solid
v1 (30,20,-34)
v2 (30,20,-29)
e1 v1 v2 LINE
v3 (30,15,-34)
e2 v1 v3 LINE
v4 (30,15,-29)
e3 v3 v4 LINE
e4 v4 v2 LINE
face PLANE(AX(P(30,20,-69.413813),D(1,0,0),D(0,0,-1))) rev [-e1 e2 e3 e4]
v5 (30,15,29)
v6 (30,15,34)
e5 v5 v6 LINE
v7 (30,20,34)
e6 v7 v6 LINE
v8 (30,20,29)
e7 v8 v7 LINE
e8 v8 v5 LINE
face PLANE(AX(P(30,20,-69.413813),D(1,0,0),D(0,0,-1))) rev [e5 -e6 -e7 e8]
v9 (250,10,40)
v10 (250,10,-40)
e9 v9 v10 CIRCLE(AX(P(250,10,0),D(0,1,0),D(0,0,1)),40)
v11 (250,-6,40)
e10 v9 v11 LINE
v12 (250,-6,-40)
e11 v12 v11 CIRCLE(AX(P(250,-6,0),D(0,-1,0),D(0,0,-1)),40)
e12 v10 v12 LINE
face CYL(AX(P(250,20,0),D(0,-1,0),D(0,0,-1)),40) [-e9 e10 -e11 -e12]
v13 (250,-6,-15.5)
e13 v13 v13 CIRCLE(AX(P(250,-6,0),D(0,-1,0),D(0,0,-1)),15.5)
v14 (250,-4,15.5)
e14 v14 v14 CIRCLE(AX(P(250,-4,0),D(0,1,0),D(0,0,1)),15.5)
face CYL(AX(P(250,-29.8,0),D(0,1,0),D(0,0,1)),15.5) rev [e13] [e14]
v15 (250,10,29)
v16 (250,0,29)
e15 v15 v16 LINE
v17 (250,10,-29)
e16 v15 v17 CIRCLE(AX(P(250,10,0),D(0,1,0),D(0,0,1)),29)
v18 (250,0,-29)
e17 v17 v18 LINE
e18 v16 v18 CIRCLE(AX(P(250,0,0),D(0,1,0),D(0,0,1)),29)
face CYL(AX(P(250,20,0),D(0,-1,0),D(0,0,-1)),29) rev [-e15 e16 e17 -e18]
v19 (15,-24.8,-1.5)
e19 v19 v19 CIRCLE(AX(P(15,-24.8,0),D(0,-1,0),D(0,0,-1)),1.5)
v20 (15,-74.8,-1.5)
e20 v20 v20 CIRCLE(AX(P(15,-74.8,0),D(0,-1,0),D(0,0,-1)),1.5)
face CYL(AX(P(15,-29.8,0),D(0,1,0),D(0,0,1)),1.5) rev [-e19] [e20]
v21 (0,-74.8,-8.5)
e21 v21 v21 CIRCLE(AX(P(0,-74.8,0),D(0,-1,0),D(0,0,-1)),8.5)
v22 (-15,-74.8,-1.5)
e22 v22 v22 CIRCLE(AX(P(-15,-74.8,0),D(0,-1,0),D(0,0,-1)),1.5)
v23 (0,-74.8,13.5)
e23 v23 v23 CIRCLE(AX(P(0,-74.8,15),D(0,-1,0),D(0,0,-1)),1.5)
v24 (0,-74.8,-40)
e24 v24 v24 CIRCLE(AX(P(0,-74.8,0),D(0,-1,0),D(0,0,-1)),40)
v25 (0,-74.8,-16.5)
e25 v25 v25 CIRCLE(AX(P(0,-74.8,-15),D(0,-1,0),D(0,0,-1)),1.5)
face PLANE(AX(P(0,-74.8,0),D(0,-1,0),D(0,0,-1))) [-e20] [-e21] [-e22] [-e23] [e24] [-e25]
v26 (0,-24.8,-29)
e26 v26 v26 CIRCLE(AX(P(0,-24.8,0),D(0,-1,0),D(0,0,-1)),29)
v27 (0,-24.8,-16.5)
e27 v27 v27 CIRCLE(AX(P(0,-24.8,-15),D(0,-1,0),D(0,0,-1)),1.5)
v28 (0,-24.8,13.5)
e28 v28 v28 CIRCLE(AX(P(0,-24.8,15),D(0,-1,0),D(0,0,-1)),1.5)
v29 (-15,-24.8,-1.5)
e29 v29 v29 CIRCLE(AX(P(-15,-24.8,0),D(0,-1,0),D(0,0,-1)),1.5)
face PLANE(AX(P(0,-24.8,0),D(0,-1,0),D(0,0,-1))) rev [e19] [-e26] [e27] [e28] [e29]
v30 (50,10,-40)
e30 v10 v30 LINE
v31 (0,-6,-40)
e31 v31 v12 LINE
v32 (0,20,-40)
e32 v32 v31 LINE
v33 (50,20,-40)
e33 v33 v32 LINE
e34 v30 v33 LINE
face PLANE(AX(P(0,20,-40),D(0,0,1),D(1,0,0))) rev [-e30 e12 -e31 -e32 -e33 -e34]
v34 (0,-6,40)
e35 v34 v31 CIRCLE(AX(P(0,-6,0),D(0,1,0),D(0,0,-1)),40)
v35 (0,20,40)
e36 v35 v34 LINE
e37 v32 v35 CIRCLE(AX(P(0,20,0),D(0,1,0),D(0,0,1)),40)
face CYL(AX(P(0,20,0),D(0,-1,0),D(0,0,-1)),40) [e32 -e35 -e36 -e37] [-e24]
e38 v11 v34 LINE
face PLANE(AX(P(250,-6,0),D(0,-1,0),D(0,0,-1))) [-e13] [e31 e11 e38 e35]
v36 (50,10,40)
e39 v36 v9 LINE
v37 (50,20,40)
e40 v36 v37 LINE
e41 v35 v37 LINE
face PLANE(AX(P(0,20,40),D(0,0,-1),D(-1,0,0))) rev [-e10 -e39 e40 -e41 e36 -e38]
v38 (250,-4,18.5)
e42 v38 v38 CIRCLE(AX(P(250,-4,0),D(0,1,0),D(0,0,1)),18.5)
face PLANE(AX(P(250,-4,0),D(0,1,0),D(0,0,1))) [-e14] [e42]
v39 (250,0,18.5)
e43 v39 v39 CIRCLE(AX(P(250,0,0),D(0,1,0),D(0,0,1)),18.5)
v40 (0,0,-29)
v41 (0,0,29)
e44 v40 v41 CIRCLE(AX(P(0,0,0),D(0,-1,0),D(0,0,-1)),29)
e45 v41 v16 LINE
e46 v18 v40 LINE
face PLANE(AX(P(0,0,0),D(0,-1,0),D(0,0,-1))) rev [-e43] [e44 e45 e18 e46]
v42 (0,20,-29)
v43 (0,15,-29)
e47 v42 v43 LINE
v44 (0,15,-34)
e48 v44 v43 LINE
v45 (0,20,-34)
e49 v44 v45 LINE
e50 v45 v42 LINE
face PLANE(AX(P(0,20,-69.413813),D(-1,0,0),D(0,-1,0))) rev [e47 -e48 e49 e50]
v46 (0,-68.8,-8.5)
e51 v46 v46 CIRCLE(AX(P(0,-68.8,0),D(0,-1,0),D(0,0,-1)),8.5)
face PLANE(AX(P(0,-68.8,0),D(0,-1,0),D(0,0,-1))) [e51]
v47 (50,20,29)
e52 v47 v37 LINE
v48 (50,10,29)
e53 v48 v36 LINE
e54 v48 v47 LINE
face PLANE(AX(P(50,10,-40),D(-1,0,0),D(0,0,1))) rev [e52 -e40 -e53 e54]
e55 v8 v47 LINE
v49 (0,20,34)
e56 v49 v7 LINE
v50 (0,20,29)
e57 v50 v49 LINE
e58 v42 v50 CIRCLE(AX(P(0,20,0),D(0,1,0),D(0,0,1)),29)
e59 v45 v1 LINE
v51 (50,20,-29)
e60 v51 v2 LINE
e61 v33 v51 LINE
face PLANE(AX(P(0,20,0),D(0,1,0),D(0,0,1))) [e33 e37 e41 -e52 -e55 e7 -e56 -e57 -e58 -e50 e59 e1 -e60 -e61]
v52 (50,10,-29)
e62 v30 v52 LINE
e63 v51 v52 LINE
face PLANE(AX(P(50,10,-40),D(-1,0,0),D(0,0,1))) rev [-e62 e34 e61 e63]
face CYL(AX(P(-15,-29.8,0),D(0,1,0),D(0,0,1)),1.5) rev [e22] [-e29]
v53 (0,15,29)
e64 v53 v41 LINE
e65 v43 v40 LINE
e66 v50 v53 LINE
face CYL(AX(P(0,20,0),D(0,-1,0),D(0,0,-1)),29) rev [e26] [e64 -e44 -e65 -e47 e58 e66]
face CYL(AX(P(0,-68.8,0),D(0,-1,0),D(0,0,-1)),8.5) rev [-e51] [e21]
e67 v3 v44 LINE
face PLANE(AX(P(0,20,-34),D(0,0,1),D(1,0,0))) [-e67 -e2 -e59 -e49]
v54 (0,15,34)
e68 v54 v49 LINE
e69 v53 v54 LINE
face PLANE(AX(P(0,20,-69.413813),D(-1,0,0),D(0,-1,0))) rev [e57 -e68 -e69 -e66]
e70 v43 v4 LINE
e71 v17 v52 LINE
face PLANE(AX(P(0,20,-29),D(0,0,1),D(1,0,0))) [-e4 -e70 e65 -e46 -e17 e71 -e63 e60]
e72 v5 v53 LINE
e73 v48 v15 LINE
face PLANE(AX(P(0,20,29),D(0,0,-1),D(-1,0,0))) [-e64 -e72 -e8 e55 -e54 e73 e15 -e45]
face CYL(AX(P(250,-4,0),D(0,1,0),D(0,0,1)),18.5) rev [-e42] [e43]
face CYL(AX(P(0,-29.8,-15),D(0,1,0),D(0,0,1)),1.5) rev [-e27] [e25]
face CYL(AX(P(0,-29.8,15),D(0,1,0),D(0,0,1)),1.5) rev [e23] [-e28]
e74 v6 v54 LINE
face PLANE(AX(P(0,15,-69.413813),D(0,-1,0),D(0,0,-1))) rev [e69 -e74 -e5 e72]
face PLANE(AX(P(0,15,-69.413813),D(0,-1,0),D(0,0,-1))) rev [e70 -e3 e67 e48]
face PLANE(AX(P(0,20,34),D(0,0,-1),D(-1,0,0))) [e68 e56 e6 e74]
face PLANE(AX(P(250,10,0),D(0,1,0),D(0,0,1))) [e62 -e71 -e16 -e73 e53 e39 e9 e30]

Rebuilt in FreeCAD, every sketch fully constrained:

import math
import FreeCAD as App
import Part
import Sketcher
from FreeCAD import Vector
Q = App.Units.Quantity


def add_polygon(sketch, points):
    """Adds a closed chain of lines whose ends are joined by coincident constraints."""
    first, n = sketch.GeometryCount, len(points)
    for a, b in zip(points, points[1:] + points[:1]):
        sketch.addGeometry(Part.LineSegment(App.Vector(*a, 0), App.Vector(*b, 0)), False)
    for i in range(n):
        sketch.addConstraint(Sketcher.Constraint("Coincident", first + i, 2, first + (i + 1) % n, 1))

doc = App.newDocument("Part")
body = doc.addObject("PartDesign::Body", "Body")

sketch1 = body.newObject("Sketcher::SketchObject", "Sketch")
sketch1.AttachmentSupport = (doc.getObject("XZ_Plane"), [""])
sketch1.MapMode = "FlatFace"
sketch1.addGeometry([
    Part.LineSegment(Vector(0, 40, 0), Vector(250, 40, 0)),
    Part.ArcOfCircle(Part.Circle(Vector(250, 0, 0), Vector(0, 0, 1), 40), math.radians(-90), math.radians(90)),
    Part.LineSegment(Vector(250, -40, 0), Vector(0, -40, 0)),
    Part.ArcOfCircle(Part.Circle(Vector(0, 0, 0), Vector(0, 0, 1), 40), math.radians(90), math.radians(270)),
    Part.ArcOfCircle(Part.Circle(Vector(0, 0, 0), Vector(0, 0, 1), 29), math.radians(90), math.radians(270)),
    Part.LineSegment(Vector(0, -29, 0), Vector(250, -29, 0)),
    Part.ArcOfCircle(Part.Circle(Vector(250, 0, 0), Vector(0, 0, 1), 29), math.radians(-90), math.radians(90)),
    Part.LineSegment(Vector(250, 29, 0), Vector(0, 29, 0)),
], False)
sketch1.addConstraint([
    Sketcher.Constraint("Tangent", 0, 2, 1, 2),
    Sketcher.Constraint("Tangent", 1, 1, 2, 1),
    Sketcher.Constraint("Tangent", 2, 2, 3, 2),
    Sketcher.Constraint("Tangent", 3, 1, 0, 1),
    Sketcher.Constraint("Tangent", 4, 2, 5, 1),
    Sketcher.Constraint("Tangent", 5, 2, 6, 1),
    Sketcher.Constraint("Tangent", 6, 2, 7, 1),
    Sketcher.Constraint("Tangent", 7, 2, 4, 1),
    Sketcher.Constraint("Horizontal", 0),
    Sketcher.Constraint("Horizontal", 2),
    Sketcher.Constraint("Horizontal", 5),
    Sketcher.Constraint("Horizontal", 7),
    Sketcher.Constraint("Coincident", 3, 3, -1, 1),
    Sketcher.Constraint("Coincident", 4, 3, -1, 1),
    Sketcher.Constraint("Vertical", 6, 3, 0, 2),
    Sketcher.Constraint("Radius", 1, Q("40 mm")),
    Sketcher.Constraint("Radius", 4, Q("29 mm")),
    Sketcher.Constraint("DistanceX", 0, 1, 0, 2, Q("250 mm")),
])
pad1 = body.newObject("PartDesign::Pad", "Pad")
pad1.Profile = sketch1
pad1.Length = 20
pad1.Reversed = True

sketch2 = body.newObject("Sketcher::SketchObject", "Sketch001")
sketch2.AttachmentSupport = (doc.getObject("XZ_Plane"), [""])
sketch2.MapMode = "FlatFace"
sketch2.addGeometry([
    Part.Circle(Vector(0, 0, 0), Vector(0, 0, 1), 40),
    Part.Circle(Vector(0, 0, 0), Vector(0, 0, 1), 29),
], False)
sketch2.addConstraint([
    Sketcher.Constraint("Coincident", 0, 3, -1, 1),
    Sketcher.Constraint("Coincident", 1, 3, -1, 1),
    Sketcher.Constraint("Diameter", 0, Q("80 mm")),
    Sketcher.Constraint("Diameter", 1, Q("58 mm")),
])
pad2 = body.newObject("PartDesign::Pad", "Pad001")
pad2.Profile = sketch2
pad2.Length = 24.8

sketch3 = body.newObject("Sketcher::SketchObject", "Sketch002")
sketch3.AttachmentSupport = (doc.getObject("XZ_Plane"), [""])
sketch3.MapMode = "FlatFace"
sketch3.AttachmentOffset = App.Placement(Vector(0, 0, 24.8), App.Rotation())
sketch3.addGeometry(Part.Circle(Vector(0, 0, 0), Vector(0, 0, 1), 40), False)
sketch3.addConstraint([
    Sketcher.Constraint("Coincident", 0, 3, -1, 1),
    Sketcher.Constraint("Diameter", 0, Q("80 mm")),
])
pad3 = body.newObject("PartDesign::Pad", "Pad002")
pad3.Profile = sketch3
pad3.Length = 5

sketch4 = body.newObject("Sketcher::SketchObject", "Sketch003")
sketch4.AttachmentSupport = (doc.getObject("XZ_Plane"), [""])
sketch4.MapMode = "FlatFace"
sketch4.addGeometry([
    Part.LineSegment(Vector(0, -40, 0), Vector(250, -40, 0)),
    Part.ArcOfCircle(Part.Circle(Vector(250, 0, 0), Vector(0, 0, 1), 40), math.radians(-90), math.radians(90)),
    Part.LineSegment(Vector(250, 40, 0), Vector(0, 40, 0)),
    Part.ArcOfCircle(Part.Circle(Vector(0, 0, 0), Vector(0, 0, 1), 40), math.radians(46.468848), math.radians(90)),
    Part.ArcOfCircle(Part.Circle(Vector(0, 0, 0), Vector(0, 0, 1), 40), math.radians(-46.468848), math.radians(46.468848)),
    Part.ArcOfCircle(Part.Circle(Vector(0, 0, 0), Vector(0, 0, 1), 40), math.radians(-90), math.radians(-46.468848)),
], False)
sketch4.addConstraint([
    Sketcher.Constraint("Tangent", 0, 2, 1, 1),
    Sketcher.Constraint("Tangent", 1, 2, 2, 1),
    Sketcher.Constraint("Tangent", 2, 2, 3, 2),
    Sketcher.Constraint("Tangent", 3, 1, 4, 2),
    Sketcher.Constraint("Tangent", 4, 1, 5, 2),
    Sketcher.Constraint("Tangent", 5, 1, 0, 1),
    Sketcher.Constraint("Horizontal", 0),
    Sketcher.Constraint("Horizontal", 2),
    Sketcher.Constraint("Coincident", 3, 3, -1, 1),
    Sketcher.Constraint("Coincident", 5, 3, -1, 1),
    Sketcher.Constraint("Vertical", 3, 1, 4, 1),
    Sketcher.Constraint("Radius", 1, Q("40 mm")),
    Sketcher.Constraint("DistanceX", 0, 1, 0, 2, Q("250 mm")),
    Sketcher.Constraint("DistanceY", -1, 1, 3, 1, Q("29 mm")),
])
pad4 = body.newObject("PartDesign::Pad", "Pad003")
pad4.Profile = sketch4
pad4.Length = 6

sketch5 = body.newObject("Sketcher::SketchObject", "Sketch004")
sketch5.AttachmentSupport = (doc.getObject("XZ_Plane"), [""])
sketch5.MapMode = "FlatFace"
sketch5.AttachmentOffset = App.Placement(Vector(0, 0, 24.8), App.Rotation())
sketch5.addGeometry([
    Part.Circle(Vector(0, -15, 0), Vector(0, 0, 1), 1.5),
    Part.Circle(Vector(15, 0, 0), Vector(0, 0, 1), 1.5),
    Part.Circle(Vector(0, 15, 0), Vector(0, 0, 1), 1.5),
    Part.Circle(Vector(-15, 0, 0), Vector(0, 0, 1), 1.5),
], False)
sketch5.addConstraint([
    Sketcher.Constraint("Equal", 0, 1),
    Sketcher.Constraint("Equal", 1, 2),
    Sketcher.Constraint("Equal", 2, 3),
    Sketcher.Constraint("Symmetric", 0, 3, 2, 3, -1, 1),
    Sketcher.Constraint("Symmetric", 1, 3, 3, 3, -1, 1),
    Sketcher.Constraint("PointOnObject", 0, 3, -2),
    Sketcher.Constraint("PointOnObject", 1, 3, -1),
    Sketcher.Constraint("Diameter", 0, Q("3 mm")),
    Sketcher.Constraint("DistanceY", 0, 3, -1, 1, Q("15 mm")),
    Sketcher.Constraint("DistanceX", -1, 1, 1, 3, Q("15 mm")),
])
pocket1 = body.newObject("PartDesign::Pocket", "Pocket")
pocket1.Profile = sketch5
pocket1.Type = "ThroughAll"
pocket1.Midplane = True

sketch6 = body.newObject("Sketcher::SketchObject", "Sketch005")
sketch6.AttachmentSupport = (doc.getObject("XY_Plane"), [""])
sketch6.MapMode = "FlatFace"
add_polygon(sketch6, [(0, 20), (0, 15), (30, 15), (30, 20)])
sketch6.addConstraint([
    Sketcher.Constraint("Vertical", 0),
    Sketcher.Constraint("Horizontal", 1),
    Sketcher.Constraint("Vertical", 2),
    Sketcher.Constraint("Horizontal", 3),
    Sketcher.Constraint("PointOnObject", 0, 2, -2),
    Sketcher.Constraint("DistanceX", 1, 1, 1, 2, Q("30 mm")),
    Sketcher.Constraint("DistanceY", 0, 2, 0, 1, Q("5 mm")),
    Sketcher.Constraint("DistanceY", -1, 1, 0, 2, Q("15 mm")),
])
pocket2 = body.newObject("PartDesign::Pocket", "Pocket001")
pocket2.Profile = sketch6
pocket2.Type = "TwoLengths"
pocket2.Length = 34
pocket2.Length2 = 34
pocket2.Reversed = True

sketch7 = body.newObject("Sketcher::SketchObject", "Sketch006")
sketch7.AttachmentSupport = (doc.getObject("XZ_Plane"), [""])
sketch7.MapMode = "FlatFace"
sketch7.addGeometry([
    Part.Circle(Vector(250, 0, 0), Vector(0, 0, 1), 18.5),
    Part.Circle(Vector(250, 0, 0), Vector(0, 0, 1), 15.5),
], False)
sketch7.addConstraint([
    Sketcher.Constraint("Coincident", 1, 3, 0, 3),
    Sketcher.Constraint("PointOnObject", 0, 3, -1),
    Sketcher.Constraint("Diameter", 0, Q("37 mm")),
    Sketcher.Constraint("Diameter", 1, Q("31 mm")),
    Sketcher.Constraint("DistanceX", -1, 1, 0, 3, Q("250 mm")),
])
pocket3 = body.newObject("PartDesign::Pocket", "Pocket002")
pocket3.Profile = sketch7
pocket3.Length = 4
pocket3.Reversed = True

sketch8 = body.newObject("Sketcher::SketchObject", "Sketch007")
sketch8.AttachmentSupport = (doc.getObject("XZ_Plane"), [""])
sketch8.MapMode = "FlatFace"
sketch8.addGeometry(Part.Circle(Vector(250, 0, 0), Vector(0, 0, 1), 15.5), False)
sketch8.addConstraint([
    Sketcher.Constraint("PointOnObject", 0, 3, -1),
    Sketcher.Constraint("Diameter", 0, Q("31 mm")),
    Sketcher.Constraint("DistanceX", -1, 1, 0, 3, Q("250 mm")),
])
pocket4 = body.newObject("PartDesign::Pocket", "Pocket003")
pocket4.Profile = sketch8
pocket4.Type = "ThroughAll"
pocket4.Midplane = True

sketch9 = body.newObject("Sketcher::SketchObject", "Sketch008")
sketch9.AttachmentSupport = (doc.getObject("XZ_Plane"), [""])
sketch9.MapMode = "FlatFace"
sketch9.AttachmentOffset = App.Placement(Vector(0, 0, -20), App.Rotation())
sketch9.addGeometry([
    Part.LineSegment(Vector(50, 40, 0), Vector(250, 40, 0)),
    Part.ArcOfCircle(Part.Circle(Vector(250, 0, 0), Vector(0, 0, 1), 40), math.radians(-90), math.radians(90)),
    Part.LineSegment(Vector(250, -40, 0), Vector(50, -40, 0)),
    Part.LineSegment(Vector(50, -40, 0), Vector(50, 40, 0)),
], False)
sketch9.addConstraint([
    Sketcher.Constraint("Tangent", 0, 2, 1, 2),
    Sketcher.Constraint("Tangent", 1, 1, 2, 1),
    Sketcher.Constraint("Coincident", 2, 2, 3, 1),
    Sketcher.Constraint("Coincident", 3, 2, 0, 1),
    Sketcher.Constraint("Horizontal", 0),
    Sketcher.Constraint("Horizontal", 2),
    Sketcher.Constraint("Vertical", 3),
    Sketcher.Constraint("PointOnObject", 1, 3, -1),
    Sketcher.Constraint("Radius", 1, Q("40 mm")),
    Sketcher.Constraint("DistanceX", 0, 1, 0, 2, Q("200 mm")),
    Sketcher.Constraint("DistanceX", -1, 1, 1, 3, Q("250 mm")),
])
pocket5 = body.newObject("PartDesign::Pocket", "Pocket004")
pocket5.Profile = sketch9
pocket5.Length = 10
pocket5.Reversed = True

sketch10 = body.newObject("Sketcher::SketchObject", "Sketch009")
sketch10.AttachmentSupport = (doc.getObject("XZ_Plane"), [""])
sketch10.MapMode = "FlatFace"
sketch10.AttachmentOffset = App.Placement(Vector(0, 0, 29.8), App.Rotation())
sketch10.addGeometry([
    Part.Circle(Vector(0, 0, 0), Vector(0, 0, 1), 40),
    Part.Circle(Vector(0, -15, 0), Vector(0, 0, 1), 1.5),
    Part.Circle(Vector(-15, 0, 0), Vector(0, 0, 1), 1.5),
    Part.Circle(Vector(15, 0, 0), Vector(0, 0, 1), 1.5),
    Part.Circle(Vector(0, 15, 0), Vector(0, 0, 1), 1.5),
], False)
sketch10.addConstraint([
    Sketcher.Constraint("Coincident", 0, 3, -1, 1),
    Sketcher.Constraint("Equal", 1, 2),
    Sketcher.Constraint("Equal", 2, 3),
    Sketcher.Constraint("Equal", 3, 4),
    Sketcher.Constraint("Symmetric", 2, 3, 3, 3, -1, 1),
    Sketcher.Constraint("Symmetric", 1, 3, 4, 3, -1, 1),
    Sketcher.Constraint("PointOnObject", 1, 3, -2),
    Sketcher.Constraint("PointOnObject", 2, 3, -1),
    Sketcher.Constraint("Diameter", 0, Q("80 mm")),
    Sketcher.Constraint("Diameter", 1, Q("3 mm")),
    Sketcher.Constraint("DistanceY", 1, 3, -1, 1, Q("15 mm")),
    Sketcher.Constraint("DistanceX", 2, 3, -1, 1, Q("15 mm")),
])
pad5 = body.newObject("PartDesign::Pad", "Pad004")
pad5.Profile = sketch10
pad5.Length = 45

sketch11 = body.newObject("Sketcher::SketchObject", "Sketch010")
sketch11.AttachmentSupport = (doc.getObject("XZ_Plane"), [""])
sketch11.MapMode = "FlatFace"
sketch11.AttachmentOffset = App.Placement(Vector(0, 0, 74.8), App.Rotation())
sketch11.addGeometry(Part.Circle(Vector(0, 0, 0), Vector(0, 0, 1), 8.5), False)
sketch11.addConstraint([
    Sketcher.Constraint("Coincident", 0, 3, -1, 1),
    Sketcher.Constraint("Diameter", 0, Q("17 mm")),
])
pocket6 = body.newObject("PartDesign::Pocket", "Pocket005")
pocket6.Profile = sketch11
pocket6.Length = 6

doc.recompute()
